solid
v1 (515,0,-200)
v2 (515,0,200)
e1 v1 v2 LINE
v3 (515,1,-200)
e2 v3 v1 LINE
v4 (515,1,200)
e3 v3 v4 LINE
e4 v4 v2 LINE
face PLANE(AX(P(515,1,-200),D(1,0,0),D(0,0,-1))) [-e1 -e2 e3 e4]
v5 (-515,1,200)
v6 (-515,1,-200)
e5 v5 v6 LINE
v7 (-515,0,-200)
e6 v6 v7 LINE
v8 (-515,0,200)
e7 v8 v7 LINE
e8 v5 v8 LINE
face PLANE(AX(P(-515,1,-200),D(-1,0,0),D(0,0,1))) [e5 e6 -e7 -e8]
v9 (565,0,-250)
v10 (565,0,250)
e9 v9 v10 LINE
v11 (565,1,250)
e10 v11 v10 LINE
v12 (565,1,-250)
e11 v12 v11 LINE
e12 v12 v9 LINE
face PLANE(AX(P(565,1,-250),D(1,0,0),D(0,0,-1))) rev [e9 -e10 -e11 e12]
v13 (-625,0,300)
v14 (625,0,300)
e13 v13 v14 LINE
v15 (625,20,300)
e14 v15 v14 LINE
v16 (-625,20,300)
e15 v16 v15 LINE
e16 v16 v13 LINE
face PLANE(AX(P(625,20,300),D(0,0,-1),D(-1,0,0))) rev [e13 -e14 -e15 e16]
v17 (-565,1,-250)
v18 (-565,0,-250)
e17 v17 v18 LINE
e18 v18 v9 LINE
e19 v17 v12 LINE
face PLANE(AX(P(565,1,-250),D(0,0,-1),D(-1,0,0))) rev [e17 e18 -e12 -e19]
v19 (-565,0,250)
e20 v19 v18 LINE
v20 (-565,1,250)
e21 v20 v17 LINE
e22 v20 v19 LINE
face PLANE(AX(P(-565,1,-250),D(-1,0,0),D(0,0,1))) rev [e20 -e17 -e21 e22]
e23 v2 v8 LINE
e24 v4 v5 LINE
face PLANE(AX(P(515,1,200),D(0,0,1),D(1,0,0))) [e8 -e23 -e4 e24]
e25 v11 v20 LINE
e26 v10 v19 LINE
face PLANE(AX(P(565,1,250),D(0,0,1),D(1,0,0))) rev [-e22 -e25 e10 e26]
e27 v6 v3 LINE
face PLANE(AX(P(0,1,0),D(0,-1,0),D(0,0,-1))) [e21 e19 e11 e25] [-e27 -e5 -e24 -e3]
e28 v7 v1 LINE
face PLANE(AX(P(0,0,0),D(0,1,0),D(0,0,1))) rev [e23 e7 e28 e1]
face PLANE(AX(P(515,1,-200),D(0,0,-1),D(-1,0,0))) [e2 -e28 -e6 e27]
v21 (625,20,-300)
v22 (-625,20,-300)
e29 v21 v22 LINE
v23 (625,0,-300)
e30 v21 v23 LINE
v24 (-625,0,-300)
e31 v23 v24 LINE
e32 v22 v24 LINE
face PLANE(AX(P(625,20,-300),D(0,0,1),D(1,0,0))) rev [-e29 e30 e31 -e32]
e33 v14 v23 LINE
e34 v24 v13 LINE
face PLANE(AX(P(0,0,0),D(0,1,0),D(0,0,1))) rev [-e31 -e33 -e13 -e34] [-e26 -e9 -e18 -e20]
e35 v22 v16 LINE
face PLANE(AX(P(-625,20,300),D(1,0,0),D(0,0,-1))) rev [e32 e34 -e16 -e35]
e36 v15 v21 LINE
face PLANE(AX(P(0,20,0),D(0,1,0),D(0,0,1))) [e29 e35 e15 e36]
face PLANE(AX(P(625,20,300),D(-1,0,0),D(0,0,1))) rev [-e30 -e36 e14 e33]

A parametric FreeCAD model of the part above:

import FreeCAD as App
import Part
import Sketcher

V = App.Vector
Q = App.Units.Quantity


def add_polygon(sketch, points):
    """Adds a closed chain of lines whose ends are joined by coincident constraints."""
    first, n = sketch.GeometryCount, len(points)
    for a, b in zip(points, points[1:] + points[:1]):
        sketch.addGeometry(Part.LineSegment(App.Vector(*a, 0), App.Vector(*b, 0)), False)
    for i in range(n):
        sketch.addConstraint(Sketcher.Constraint("Coincident", first + i, 2, first + (i + 1) % n, 1))

doc = App.newDocument("Part")
body = doc.addObject("PartDesign::Body", "Body")

# Sketch on XZ plane
sketch1 = body.newObject("Sketcher::SketchObject", "Sketch")
sketch1.AttachmentSupport = (doc.getObject("XZ_Plane"), [""])
sketch1.MapMode = "FlatFace"
add_polygon(sketch1, [(-625, -300), (-625, 300), (625, 300), (625, -300)])  # lines 0-3
sketch1.addConstraint(Sketcher.Constraint("Vertical", 0))
sketch1.addConstraint(Sketcher.Constraint("Horizontal", 1))
sketch1.addConstraint(Sketcher.Constraint("Vertical", 2))
sketch1.addConstraint(Sketcher.Constraint("Horizontal", 3))
sketch1.addConstraint(Sketcher.Constraint("Symmetric", 0, 2, 2, 2, -1, 1))
sketch1.addConstraint(Sketcher.Constraint("DistanceX", 1, 1, 1, 2, Q("1250 mm")))
sketch1.addConstraint(Sketcher.Constraint("DistanceY", 0, 1, 0, 2, Q("600 mm")))
pad1 = body.newObject("PartDesign::Pad", "Pad")
pad1.Profile = sketch1
pad1.Length = 20
pad1.Reversed = True

# Sketch on XZ plane
sketch2 = body.newObject("Sketcher::SketchObject", "Sketch001")
sketch2.AttachmentSupport = (doc.getObject("XZ_Plane"), [""])
sketch2.MapMode = "FlatFace"
add_polygon(sketch2, [(-565, 250), (-565, -250), (565, -250), (565, 250)])  # lines 0-3
add_polygon(sketch2, [(515, -200), (-515, -200), (-515, 200), (515, 200)])  # lines 4-7
sketch2.addConstraint(Sketcher.Constraint("Vertical", 0))
sketch2.addConstraint(Sketcher.Constraint("Horizontal", 1))
sketch2.addConstraint(Sketcher.Constraint("Vertical", 2))
sketch2.addConstraint(Sketcher.Constraint("Horizontal", 3))
sketch2.addConstraint(Sketcher.Constraint("Horizontal", 4))
sketch2.addConstraint(Sketcher.Constraint("Vertical", 5))
sketch2.addConstraint(Sketcher.Constraint("Horizontal", 6))
sketch2.addConstraint(Sketcher.Constraint("Vertical", 7))
sketch2.addConstraint(Sketcher.Constraint("Symmetric", 0, 2, 2, 2, -1, 1))
sketch2.addConstraint(Sketcher.Constraint("Symmetric", 4, 2, 6, 2, -1, 1))
sketch2.addConstraint(Sketcher.Constraint("DistanceX", 1, 1, 1, 2, Q("1130 mm")))
sketch2.addConstraint(Sketcher.Constraint("DistanceX", 4, 2, 4, 1, Q("1030 mm")))
sketch2.addConstraint(Sketcher.Constraint("DistanceY", 0, 2, 0, 1, Q("500 mm")))
sketch2.addConstraint(Sketcher.Constraint("DistanceY", 5, 1, 5, 2, Q("400 mm")))
pocket1 = body.newObject("PartDesign::Pocket", "Pocket")
pocket1.Profile = sketch2
pocket1.Length = 1

doc.recompute()
